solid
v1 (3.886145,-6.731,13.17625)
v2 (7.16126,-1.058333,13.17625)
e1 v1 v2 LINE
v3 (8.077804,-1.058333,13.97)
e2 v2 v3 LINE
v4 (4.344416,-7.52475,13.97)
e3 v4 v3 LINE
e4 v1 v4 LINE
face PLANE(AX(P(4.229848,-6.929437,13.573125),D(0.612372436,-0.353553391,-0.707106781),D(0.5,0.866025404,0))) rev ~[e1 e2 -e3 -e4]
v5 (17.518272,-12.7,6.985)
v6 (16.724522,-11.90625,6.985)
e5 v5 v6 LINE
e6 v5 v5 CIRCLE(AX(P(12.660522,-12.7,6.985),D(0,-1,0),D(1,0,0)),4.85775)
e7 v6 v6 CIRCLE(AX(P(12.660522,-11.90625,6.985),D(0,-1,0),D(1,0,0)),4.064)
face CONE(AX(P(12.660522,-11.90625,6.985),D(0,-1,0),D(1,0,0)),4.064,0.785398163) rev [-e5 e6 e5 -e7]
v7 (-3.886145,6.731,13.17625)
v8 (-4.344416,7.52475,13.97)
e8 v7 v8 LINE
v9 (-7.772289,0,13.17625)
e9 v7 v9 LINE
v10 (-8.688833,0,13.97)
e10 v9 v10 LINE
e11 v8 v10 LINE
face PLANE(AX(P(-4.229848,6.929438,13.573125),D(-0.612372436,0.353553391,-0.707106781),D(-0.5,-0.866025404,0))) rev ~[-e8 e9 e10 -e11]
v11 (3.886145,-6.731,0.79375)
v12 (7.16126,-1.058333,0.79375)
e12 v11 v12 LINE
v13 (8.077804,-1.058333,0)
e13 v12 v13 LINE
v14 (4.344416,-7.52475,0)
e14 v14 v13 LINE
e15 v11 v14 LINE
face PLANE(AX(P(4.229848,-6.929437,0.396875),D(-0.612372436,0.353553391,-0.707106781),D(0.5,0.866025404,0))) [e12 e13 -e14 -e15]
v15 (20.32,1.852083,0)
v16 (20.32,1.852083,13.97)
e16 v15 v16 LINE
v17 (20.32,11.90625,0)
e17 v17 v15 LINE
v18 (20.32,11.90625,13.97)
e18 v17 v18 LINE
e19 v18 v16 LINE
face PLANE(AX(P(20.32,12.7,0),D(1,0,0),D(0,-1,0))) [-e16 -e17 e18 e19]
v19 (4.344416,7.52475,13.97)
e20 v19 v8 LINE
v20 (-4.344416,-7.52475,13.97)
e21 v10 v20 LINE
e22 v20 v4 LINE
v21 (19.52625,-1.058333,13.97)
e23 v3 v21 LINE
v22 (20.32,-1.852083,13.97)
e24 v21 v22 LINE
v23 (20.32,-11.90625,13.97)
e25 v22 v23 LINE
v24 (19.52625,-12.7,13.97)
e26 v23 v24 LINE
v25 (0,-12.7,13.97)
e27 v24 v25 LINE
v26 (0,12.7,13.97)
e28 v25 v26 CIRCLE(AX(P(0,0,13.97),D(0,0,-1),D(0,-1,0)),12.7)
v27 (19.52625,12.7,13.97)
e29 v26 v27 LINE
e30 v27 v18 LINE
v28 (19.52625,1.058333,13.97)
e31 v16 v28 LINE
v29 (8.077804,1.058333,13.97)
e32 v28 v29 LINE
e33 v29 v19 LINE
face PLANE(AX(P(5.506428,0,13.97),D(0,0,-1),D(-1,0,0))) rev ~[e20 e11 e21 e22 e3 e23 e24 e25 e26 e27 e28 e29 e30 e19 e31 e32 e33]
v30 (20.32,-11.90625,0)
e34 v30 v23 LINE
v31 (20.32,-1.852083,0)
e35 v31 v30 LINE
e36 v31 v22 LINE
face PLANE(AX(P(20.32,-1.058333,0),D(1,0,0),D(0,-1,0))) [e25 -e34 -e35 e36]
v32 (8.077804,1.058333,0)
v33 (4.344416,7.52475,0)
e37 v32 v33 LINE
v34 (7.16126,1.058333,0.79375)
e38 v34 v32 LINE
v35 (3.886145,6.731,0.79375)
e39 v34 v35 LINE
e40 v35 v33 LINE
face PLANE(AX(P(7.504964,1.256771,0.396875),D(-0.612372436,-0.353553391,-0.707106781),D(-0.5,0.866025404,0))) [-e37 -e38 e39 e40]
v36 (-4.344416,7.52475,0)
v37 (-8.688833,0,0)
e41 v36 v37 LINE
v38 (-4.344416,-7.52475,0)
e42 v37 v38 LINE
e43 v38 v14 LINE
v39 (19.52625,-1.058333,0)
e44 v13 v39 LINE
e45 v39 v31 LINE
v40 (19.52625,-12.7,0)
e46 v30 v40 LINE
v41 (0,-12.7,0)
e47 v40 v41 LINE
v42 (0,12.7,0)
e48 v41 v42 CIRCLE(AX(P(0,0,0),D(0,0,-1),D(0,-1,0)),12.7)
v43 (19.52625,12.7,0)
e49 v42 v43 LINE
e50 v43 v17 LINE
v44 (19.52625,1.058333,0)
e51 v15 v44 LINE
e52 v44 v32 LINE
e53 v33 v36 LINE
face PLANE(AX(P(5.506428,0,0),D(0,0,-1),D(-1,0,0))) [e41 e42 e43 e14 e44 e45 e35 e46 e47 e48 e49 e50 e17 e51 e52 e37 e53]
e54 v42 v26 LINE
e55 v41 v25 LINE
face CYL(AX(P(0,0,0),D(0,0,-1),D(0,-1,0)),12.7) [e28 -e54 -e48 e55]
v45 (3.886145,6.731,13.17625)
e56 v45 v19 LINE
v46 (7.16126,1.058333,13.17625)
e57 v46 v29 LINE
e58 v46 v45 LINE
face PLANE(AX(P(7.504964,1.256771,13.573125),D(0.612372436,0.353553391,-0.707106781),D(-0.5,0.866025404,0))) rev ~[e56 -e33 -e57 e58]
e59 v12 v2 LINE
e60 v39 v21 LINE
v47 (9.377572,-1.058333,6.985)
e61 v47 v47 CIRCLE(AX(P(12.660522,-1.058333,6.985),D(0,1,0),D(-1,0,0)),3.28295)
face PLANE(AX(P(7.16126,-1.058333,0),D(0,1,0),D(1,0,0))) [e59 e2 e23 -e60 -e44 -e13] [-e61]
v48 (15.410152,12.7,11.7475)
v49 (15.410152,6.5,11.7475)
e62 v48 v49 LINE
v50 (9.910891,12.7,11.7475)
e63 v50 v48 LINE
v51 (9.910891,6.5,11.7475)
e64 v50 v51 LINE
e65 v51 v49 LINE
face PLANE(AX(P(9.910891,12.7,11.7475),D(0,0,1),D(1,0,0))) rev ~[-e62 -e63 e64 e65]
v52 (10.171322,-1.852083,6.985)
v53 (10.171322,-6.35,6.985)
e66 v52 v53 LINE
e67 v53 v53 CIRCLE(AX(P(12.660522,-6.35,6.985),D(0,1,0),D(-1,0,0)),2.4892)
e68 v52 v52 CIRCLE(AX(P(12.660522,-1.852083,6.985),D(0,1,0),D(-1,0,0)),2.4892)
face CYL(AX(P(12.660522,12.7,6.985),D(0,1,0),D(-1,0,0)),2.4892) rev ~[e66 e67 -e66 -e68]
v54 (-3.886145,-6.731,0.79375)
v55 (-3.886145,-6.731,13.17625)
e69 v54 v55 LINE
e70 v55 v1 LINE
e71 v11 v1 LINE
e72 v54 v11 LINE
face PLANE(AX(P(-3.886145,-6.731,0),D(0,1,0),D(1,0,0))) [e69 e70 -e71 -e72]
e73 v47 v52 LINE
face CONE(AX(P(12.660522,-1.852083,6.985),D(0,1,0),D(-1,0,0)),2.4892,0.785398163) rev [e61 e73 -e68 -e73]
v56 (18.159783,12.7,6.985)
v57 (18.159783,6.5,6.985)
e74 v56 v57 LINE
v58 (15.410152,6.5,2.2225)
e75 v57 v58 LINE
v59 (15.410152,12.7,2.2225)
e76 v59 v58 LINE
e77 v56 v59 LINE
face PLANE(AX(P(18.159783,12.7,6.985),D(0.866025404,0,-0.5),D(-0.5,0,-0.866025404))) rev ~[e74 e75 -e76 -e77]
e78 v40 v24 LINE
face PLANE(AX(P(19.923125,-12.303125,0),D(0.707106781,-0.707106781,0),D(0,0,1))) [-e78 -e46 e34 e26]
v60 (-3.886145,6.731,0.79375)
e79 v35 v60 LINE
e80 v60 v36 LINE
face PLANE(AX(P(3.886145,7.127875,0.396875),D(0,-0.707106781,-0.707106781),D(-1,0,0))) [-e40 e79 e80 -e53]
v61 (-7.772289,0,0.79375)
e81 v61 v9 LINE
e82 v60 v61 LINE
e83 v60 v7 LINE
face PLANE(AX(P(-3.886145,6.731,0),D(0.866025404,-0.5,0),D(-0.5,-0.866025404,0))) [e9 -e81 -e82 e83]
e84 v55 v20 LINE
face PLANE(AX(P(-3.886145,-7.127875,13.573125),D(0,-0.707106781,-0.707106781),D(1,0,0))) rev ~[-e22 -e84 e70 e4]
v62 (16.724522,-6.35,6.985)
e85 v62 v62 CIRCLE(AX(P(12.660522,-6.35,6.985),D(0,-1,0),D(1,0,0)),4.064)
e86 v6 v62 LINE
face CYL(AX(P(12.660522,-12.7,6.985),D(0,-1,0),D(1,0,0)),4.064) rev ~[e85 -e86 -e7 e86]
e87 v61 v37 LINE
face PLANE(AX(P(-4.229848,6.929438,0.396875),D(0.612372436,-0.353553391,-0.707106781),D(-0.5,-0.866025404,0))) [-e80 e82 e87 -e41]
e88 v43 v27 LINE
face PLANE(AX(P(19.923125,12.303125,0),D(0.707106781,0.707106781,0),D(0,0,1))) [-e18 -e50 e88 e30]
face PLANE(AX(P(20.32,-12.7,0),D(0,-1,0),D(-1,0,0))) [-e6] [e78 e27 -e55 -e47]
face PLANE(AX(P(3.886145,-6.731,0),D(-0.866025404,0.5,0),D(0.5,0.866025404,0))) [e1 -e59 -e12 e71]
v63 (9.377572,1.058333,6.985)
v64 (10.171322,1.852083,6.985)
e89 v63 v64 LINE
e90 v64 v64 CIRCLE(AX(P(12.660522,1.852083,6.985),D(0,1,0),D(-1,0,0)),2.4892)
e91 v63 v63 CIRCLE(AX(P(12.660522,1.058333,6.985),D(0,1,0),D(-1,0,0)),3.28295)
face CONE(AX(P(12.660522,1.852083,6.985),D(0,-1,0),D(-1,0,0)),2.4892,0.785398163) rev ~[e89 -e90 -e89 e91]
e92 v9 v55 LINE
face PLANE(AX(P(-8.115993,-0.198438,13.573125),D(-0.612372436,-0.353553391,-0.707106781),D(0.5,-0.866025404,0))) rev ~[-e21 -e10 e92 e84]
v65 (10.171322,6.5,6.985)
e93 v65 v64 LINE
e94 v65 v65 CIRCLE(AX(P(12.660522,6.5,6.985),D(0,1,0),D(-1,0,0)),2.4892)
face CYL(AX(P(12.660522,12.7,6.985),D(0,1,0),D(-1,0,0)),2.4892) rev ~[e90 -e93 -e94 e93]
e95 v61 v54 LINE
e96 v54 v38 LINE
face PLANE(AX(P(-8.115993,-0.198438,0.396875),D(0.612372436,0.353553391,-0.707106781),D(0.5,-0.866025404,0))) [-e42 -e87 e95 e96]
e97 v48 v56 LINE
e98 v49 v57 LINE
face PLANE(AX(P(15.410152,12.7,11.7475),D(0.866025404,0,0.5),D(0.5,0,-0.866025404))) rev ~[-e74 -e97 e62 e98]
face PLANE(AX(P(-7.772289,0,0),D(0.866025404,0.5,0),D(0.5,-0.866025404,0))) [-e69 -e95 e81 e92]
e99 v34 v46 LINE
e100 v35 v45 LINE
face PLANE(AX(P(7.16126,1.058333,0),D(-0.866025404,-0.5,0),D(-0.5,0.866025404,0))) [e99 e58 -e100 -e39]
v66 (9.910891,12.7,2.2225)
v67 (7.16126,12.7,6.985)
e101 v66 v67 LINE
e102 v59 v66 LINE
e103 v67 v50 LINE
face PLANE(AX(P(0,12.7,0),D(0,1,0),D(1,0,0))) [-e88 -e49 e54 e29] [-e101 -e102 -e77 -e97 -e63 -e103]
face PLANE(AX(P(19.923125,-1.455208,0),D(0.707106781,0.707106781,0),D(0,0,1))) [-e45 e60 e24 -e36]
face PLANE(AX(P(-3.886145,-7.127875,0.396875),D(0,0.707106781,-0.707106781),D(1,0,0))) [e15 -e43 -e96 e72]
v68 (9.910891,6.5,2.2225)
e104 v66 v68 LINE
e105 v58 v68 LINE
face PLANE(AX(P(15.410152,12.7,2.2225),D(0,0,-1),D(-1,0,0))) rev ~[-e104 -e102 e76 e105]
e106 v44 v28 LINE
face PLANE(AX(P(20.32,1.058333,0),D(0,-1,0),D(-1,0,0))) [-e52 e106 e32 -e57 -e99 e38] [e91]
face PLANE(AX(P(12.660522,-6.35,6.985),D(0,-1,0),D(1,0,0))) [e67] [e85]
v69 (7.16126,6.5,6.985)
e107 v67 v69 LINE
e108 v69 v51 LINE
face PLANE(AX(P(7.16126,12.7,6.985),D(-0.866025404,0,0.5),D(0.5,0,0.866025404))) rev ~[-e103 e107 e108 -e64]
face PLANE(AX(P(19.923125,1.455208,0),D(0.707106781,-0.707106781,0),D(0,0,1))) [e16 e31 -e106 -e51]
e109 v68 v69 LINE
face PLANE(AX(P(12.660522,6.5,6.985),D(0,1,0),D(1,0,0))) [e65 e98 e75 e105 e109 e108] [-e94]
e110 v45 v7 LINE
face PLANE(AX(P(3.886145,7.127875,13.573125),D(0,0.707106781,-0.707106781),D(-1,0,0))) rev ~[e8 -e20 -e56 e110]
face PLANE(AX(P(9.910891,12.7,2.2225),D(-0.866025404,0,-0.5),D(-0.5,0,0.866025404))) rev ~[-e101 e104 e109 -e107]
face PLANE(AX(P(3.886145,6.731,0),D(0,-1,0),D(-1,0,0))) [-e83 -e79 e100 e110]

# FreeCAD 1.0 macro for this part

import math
import FreeCAD as App
import Part
import Sketcher
from FreeCAD import Vector
Q = App.Units.Quantity


def edges_at(feature, points):
    """Names of the edges that pass closest to the given points."""
    edges = feature.Shape.Edges
    near = lambda p: min(range(len(edges)), key=lambda i: edges[i].distToShape(Part.Vertex(*p))[0])
    return sorted({f"Edge{near(p) + 1}" for p in points})

doc = App.newDocument("Part")
body = doc.addObject("PartDesign::Body", "Body")

sketch1 = doc.addObject("Sketcher::SketchObject", "Sketch")
body.addObject(sketch1)
sketch1.AttachmentSupport = (doc.XY_Plane, [""])
sketch1.MapMode = "FlatFace"
sketch1.addGeometry([
    Part.LineSegment(Vector(7, -1, 0), Vector(4, -7, 0)),
    Part.LineSegment(Vector(4, -7, 0), Vector(-4, -7, 0)),
    Part.LineSegment(Vector(-4, -7, 0), Vector(-8, 0, 0)),
    Part.LineSegment(Vector(-8, 0, 0), Vector(-4, 7, 0)),
    Part.LineSegment(Vector(-4, 7, 0), Vector(4, 7, 0)),
    Part.LineSegment(Vector(4, 7, 0), Vector(7, 1, 0)),
    Part.LineSegment(Vector(7, 1, 0), Vector(20, 1, 0)),
    Part.LineSegment(Vector(20, 1, 0), Vector(20, 13, 0)),
    Part.LineSegment(Vector(20, 13, 0), Vector(0, 13, 0)),
    Part.ArcOfCircle(Part.Circle(Vector(0, 0, 0), Vector(0, 0, 1), 13), math.radians(90), math.radians(270)),
    Part.LineSegment(Vector(0, -13, 0), Vector(20, -13, 0)),
    Part.LineSegment(Vector(20, -13, 0), Vector(20, -1, 0)),
    Part.LineSegment(Vector(20, -1, 0), Vector(7, -1, 0)),
], False)
sketch1.addConstraint([
    Sketcher.Constraint("Coincident", 0, 2, 1, 1),
    Sketcher.Constraint("Coincident", 1, 2, 2, 1),
    Sketcher.Constraint("Coincident", 2, 2, 3, 1),
    Sketcher.Constraint("Coincident", 3, 2, 4, 1),
    Sketcher.Constraint("Coincident", 4, 2, 5, 1),
    Sketcher.Constraint("Coincident", 5, 2, 6, 1),
    Sketcher.Constraint("Coincident", 6, 2, 7, 1),
    Sketcher.Constraint("Coincident", 7, 2, 8, 1),
    Sketcher.Constraint("Tangent", 8, 2, 9, 1),
    Sketcher.Constraint("Tangent", 9, 2, 10, 1),
    Sketcher.Constraint("Coincident", 10, 2, 11, 1),
    Sketcher.Constraint("Coincident", 11, 2, 12, 1),
    Sketcher.Constraint("Coincident", 12, 2, 0, 1),
    Sketcher.Constraint("Horizontal", 1),
    Sketcher.Constraint("Horizontal", 4),
    Sketcher.Constraint("Horizontal", 6),
    Sketcher.Constraint("Vertical", 7),
    Sketcher.Constraint("Horizontal", 8),
    Sketcher.Constraint("Horizontal", 10),
    Sketcher.Constraint("Vertical", 11),
    Sketcher.Constraint("Horizontal", 12),
    Sketcher.Constraint("Coincident", 9, 3, -1, 1),
    Sketcher.Constraint("Symmetric", 0, 2, 3, 2, -1, 1),
    Sketcher.Constraint("Symmetric", 6, 2, 11, 2, -1),
    Sketcher.Constraint("PointOnObject", 2, 2, -1),
    Sketcher.Constraint("Parallel", 0, 3),
    Sketcher.Constraint("Parallel", 2, 5),
    Sketcher.Constraint("Vertical", 1, 2, 3, 2),
    Sketcher.Constraint("Vertical", 0, 2, 4, 2),
    Sketcher.Constraint("Radius", 9, Q("0.5 in")),
    Sketcher.Constraint("DistanceX", 8, 2, 8, 1, Q("0.8 in")),
    Sketcher.Constraint("Angle", 0, Q("-120 deg")),
    Sketcher.Constraint("DistanceY", 1, 2, 3, 2, Q("0.53 in")),
    Sketcher.Constraint("DistanceX", 1, 2, 1, 1, Q("7.772289 mm")),
    Sketcher.Constraint("DistanceX", 6, 1, 6, 2, Q("13.15874 mm")),
])
pad1 = doc.addObject("PartDesign::Pad", "Pad")
body.addObject(pad1)
pad1.Profile = sketch1
pad1.Length = Q("0.55 in")
doc.recompute()

chamfer = doc.addObject("PartDesign::Chamfer", "Chamfer")
body.addObject(chamfer)
chamfer.Base = (pad1, edges_at(pad1, [
    (5.524, 3.895, 0),
    (0, 6.731, 0),
    (-5.829, 3.365, 0),
    (-5.829, -3.365, 0),
    (0, -6.731, 0),
    (5.524, -3.895, 0),
    (20.32, -1.058, 6.985),
    (20.32, -12.7, 6.985),
    (20.32, 12.7, 6.985),
    (20.32, 1.058, 6.985),
    (5.524, -3.895, 13.97),
    (0, -6.731, 13.97),
    (-5.829, -3.365, 13.97),
    (-5.829, 3.365, 13.97),
    (0, 6.731, 13.97),
    (5.524, 3.895, 13.97),
]))
chamfer.Size = Q("0.03125 in")

sketch2 = doc.addObject("Sketcher::SketchObject", "Sketch001")
body.addObject(sketch2)
sketch2.AttachmentSupport = (doc.XZ_Plane, [""])
sketch2.MapMode = "FlatFace"
sketch2.AttachmentOffset = App.Placement(Vector(0, 0, -0.5 * 25.4), App.Rotation())
sketch2.addGeometry(Part.Circle(Vector(12.7, 7, 0), Vector(0, 0, 1), 2.5), False)
sketch2.addConstraint([
    Sketcher.Constraint("Diameter", 0, Q("0.196 in")),
    Sketcher.Constraint("DistanceY", -1, 1, 0, 3, Q("0.275 in")),
    Sketcher.Constraint("DistanceX", -1, 1, 0, 3, Q("12.660522 mm")),
])
pocket1 = doc.addObject("PartDesign::Pocket", "Pocket")
body.addObject(pocket1)
pocket1.Profile = sketch2
pocket1.Type = "ThroughAll"
pocket1.Reversed = True

sketch3 = doc.addObject("Sketcher::SketchObject", "Sketch002")
body.addObject(sketch3)
sketch3.AttachmentSupport = (doc.XZ_Plane, [""])
sketch3.MapMode = "FlatFace"
sketch3.AttachmentOffset = App.Placement(Vector(0, 0, -0.5 * 25.4), App.Rotation())
sketch3.addGeometry([
    Part.LineSegment(Vector(10, 12, 0), Vector(15, 12, 0)),
    Part.LineSegment(Vector(15, 12, 0), Vector(18, 7, 0)),
    Part.LineSegment(Vector(18, 7, 0), Vector(15, 2, 0)),
    Part.LineSegment(Vector(15, 2, 0), Vector(10, 2, 0)),
    Part.LineSegment(Vector(10, 2, 0), Vector(7, 7, 0)),
    Part.LineSegment(Vector(7, 7, 0), Vector(10, 12, 0)),
], False)
sketch3.addConstraint([
    Sketcher.Constraint("Coincident", 0, 2, 1, 1),
    Sketcher.Constraint("Coincident", 1, 2, 2, 1),
    Sketcher.Constraint("Coincident", 2, 2, 3, 1),
    Sketcher.Constraint("Coincident", 3, 2, 4, 1),
    Sketcher.Constraint("Coincident", 4, 2, 5, 1),
    Sketcher.Constraint("Coincident", 5, 2, 0, 1),
    Sketcher.Constraint("Horizontal", 0),
    Sketcher.Constraint("Horizontal", 3),
    Sketcher.Constraint("Parallel", 1, 4),
    Sketcher.Constraint("Parallel", 2, 5),
    Sketcher.Constraint("Horizontal", 1, 2, 4, 2),
    Sketcher.Constraint("Vertical", 0, 2, 2, 2),
    Sketcher.Constraint("Vertical", 3, 2, 5, 2),
    Sketcher.Constraint("Angle", 1, Q("-60 deg")),
    Sketcher.Constraint("DistanceY", -1, 1, 1, 2, Q("0.275 in")),
    Sketcher.Constraint("DistanceY", 1, 2, 0, 2, Q("0.1875 in")),
    Sketcher.Constraint("DistanceX", 0, 1, 0, 2, Q("5.499261 mm")),
    Sketcher.Constraint("DistanceX", -1, 1, 3, 2, Q("9.910891 mm")),
])
pocket2 = doc.addObject("PartDesign::Pocket", "Pocket001")
body.addObject(pocket2)
pocket2.Profile = sketch3
pocket2.Length = 6.2
pocket2.Reversed = True

sketch4 = doc.addObject("Sketcher::SketchObject", "Sketch003")
body.addObject(sketch4)
sketch4.AttachmentSupport = (doc.XZ_Plane, [""])
sketch4.MapMode = "FlatFace"
sketch4.AttachmentOffset = App.Placement(Vector(0, 0, 0.5 * 25.4), App.Rotation())
sketch4.addGeometry(Part.Circle(Vector(12.7, 7, 0), Vector(0, 0, 1), 4.1), False)
sketch4.addConstraint([
    Sketcher.Constraint("Diameter", 0, Q("0.32 in")),
    Sketcher.Constraint("DistanceY", -1, 1, 0, 3, Q("0.275 in")),
    Sketcher.Constraint("DistanceX", -1, 1, 0, 3, Q("12.660522 mm")),
])
pocket3 = doc.addObject("PartDesign::Pocket", "Pocket002")
body.addObject(pocket3)
pocket3.Profile = sketch4
pocket3.Length = Q("0.25 in")
doc.recompute()

chamfer2 = doc.addObject("PartDesign::Chamfer", "Chamfer001")
body.addObject(chamfer2)
chamfer2.Base = (pocket3, edges_at(pocket3, [(15.15, -1.058, 6.985), (15.15, 1.058, 6.985), (8.597, -12.7, 6.985)]))
chamfer2.Size = Q("0.03125 in")

doc.recompute()
